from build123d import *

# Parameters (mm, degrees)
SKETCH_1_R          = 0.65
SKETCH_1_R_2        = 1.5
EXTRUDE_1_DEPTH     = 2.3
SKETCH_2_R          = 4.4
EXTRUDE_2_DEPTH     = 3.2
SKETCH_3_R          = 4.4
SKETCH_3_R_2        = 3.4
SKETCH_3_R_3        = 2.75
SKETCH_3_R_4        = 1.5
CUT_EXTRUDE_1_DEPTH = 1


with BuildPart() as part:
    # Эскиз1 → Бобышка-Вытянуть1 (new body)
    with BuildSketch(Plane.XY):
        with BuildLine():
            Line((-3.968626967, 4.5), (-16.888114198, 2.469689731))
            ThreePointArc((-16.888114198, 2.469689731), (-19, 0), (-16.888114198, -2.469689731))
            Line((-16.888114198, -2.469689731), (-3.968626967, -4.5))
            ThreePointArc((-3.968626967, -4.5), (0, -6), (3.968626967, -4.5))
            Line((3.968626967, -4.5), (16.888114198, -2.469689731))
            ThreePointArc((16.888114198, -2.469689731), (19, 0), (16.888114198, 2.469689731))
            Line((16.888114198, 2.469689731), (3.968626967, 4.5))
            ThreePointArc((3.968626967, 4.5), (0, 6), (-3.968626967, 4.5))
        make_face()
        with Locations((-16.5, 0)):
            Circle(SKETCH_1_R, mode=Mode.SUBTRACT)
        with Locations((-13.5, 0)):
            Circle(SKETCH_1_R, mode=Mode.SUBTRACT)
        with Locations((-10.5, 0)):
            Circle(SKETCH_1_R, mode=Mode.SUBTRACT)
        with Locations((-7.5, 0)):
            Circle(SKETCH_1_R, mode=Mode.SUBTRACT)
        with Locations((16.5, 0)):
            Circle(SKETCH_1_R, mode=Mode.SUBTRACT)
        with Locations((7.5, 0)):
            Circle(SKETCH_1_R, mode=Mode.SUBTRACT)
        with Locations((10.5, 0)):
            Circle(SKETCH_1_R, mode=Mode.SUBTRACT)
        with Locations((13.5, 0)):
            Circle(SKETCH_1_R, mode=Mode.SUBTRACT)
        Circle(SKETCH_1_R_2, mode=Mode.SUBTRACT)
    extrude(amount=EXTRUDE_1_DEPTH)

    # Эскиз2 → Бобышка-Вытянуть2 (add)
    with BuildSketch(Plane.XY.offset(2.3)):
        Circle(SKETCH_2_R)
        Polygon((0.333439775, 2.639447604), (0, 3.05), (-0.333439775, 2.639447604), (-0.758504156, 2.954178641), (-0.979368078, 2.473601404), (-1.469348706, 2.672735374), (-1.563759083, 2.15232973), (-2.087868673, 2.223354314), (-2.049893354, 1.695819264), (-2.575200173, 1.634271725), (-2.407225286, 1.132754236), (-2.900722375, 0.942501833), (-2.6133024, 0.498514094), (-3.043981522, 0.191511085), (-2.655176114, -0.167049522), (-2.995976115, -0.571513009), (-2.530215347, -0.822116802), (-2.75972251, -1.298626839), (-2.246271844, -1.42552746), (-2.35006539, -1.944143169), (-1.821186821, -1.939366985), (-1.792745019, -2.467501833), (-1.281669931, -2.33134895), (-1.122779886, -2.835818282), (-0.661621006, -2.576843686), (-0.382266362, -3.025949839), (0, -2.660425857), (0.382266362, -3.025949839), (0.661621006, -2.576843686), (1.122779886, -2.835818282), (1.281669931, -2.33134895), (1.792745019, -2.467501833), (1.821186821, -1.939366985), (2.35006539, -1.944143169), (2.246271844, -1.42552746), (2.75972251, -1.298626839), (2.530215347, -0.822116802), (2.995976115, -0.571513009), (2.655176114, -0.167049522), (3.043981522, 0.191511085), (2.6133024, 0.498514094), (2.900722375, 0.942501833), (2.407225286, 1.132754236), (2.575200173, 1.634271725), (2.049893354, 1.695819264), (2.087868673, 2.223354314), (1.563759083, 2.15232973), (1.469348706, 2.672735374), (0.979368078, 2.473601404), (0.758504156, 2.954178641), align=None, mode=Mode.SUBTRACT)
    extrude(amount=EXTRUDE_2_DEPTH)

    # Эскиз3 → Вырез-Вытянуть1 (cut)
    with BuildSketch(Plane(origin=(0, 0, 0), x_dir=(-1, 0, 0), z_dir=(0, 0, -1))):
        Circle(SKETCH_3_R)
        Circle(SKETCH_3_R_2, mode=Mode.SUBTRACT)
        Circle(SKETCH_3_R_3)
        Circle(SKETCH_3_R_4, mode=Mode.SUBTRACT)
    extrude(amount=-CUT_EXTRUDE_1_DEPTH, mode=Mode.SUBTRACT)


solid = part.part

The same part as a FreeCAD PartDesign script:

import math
import FreeCAD as App
import Part
import Sketcher
from FreeCAD import Vector


def add_polygon(sketch, points):
    """Adds a closed chain of lines whose ends are joined by coincident constraints."""
    first, n = sketch.GeometryCount, len(points)
    for a, b in zip(points, points[1:] + points[:1]):
        sketch.addGeometry(Part.LineSegment(App.Vector(*a, 0), App.Vector(*b, 0)), False)
    for i in range(n):
        sketch.addConstraint(Sketcher.Constraint("Coincident", first + i, 2, first + (i + 1) % n, 1))

doc = App.newDocument("Part")
body = doc.addObject("PartDesign::Body", "Body")

# Sketch on XY plane
sketch1 = body.newObject("Sketcher::SketchObject", "Sketch")
sketch1.AttachmentSupport = (doc.getObject("XY_Plane"), [""])
sketch1.MapMode = "FlatFace"
sketch1.addGeometry(Part.LineSegment(Vector(-3.968627, 4.5, 0), Vector(-16.888114, 2.46969, 0)), False)
sketch1.addGeometry(Part.ArcOfCircle(Part.Circle(Vector(-16.5, 0, 0), Vector(0, 0, 1), 2.5), math.radians(98.931045), math.radians(261.068955)), False)
sketch1.addGeometry(Part.LineSegment(Vector(-16.888114, -2.46969, 0), Vector(-3.968627, -4.5, 0)), False)
sketch1.addGeometry(Part.ArcOfCircle(Part.Circle(Vector(0, 0, 0), Vector(0, 0, 1), 6), math.radians(-131.409622), math.radians(-48.590378)), False)
sketch1.addGeometry(Part.LineSegment(Vector(3.968627, -4.5, 0), Vector(16.888114, -2.46969, 0)), False)
sketch1.addGeometry(Part.ArcOfCircle(Part.Circle(Vector(16.5, 0, 0), Vector(0, 0, 1), 2.5), math.radians(-81.068955), math.radians(81.068955)), False)
sketch1.addGeometry(Part.LineSegment(Vector(16.888114, 2.46969, 0), Vector(3.968627, 4.5, 0)), False)
sketch1.addGeometry(Part.ArcOfCircle(Part.Circle(Vector(0, 0, 0), Vector(0, 0, 1), 6), math.radians(48.590378), math.radians(131.409622)), False)
sketch1.addGeometry(Part.Circle(Vector(-16.5, 0, 0), Vector(0, 0, 1), 0.65), False)
sketch1.addGeometry(Part.Circle(Vector(-13.5, 0, 0), Vector(0, 0, 1), 0.65), False)
sketch1.addGeometry(Part.Circle(Vector(-10.5, 0, 0), Vector(0, 0, 1), 0.65), False)
sketch1.addGeometry(Part.Circle(Vector(-7.5, 0, 0), Vector(0, 0, 1), 0.65), False)
sketch1.addGeometry(Part.Circle(Vector(0, 0, 0), Vector(0, 0, 1), 1.5), False)
sketch1.addGeometry(Part.Circle(Vector(7.5, 0, 0), Vector(0, 0, 1), 0.65), False)
sketch1.addGeometry(Part.Circle(Vector(10.5, 0, 0), Vector(0, 0, 1), 0.65), False)
sketch1.addGeometry(Part.Circle(Vector(13.5, 0, 0), Vector(0, 0, 1), 0.65), False)
sketch1.addGeometry(Part.Circle(Vector(16.5, 0, 0), Vector(0, 0, 1), 0.65), False)
sketch1.addConstraint(Sketcher.Constraint("Tangent", 0, 2, 1, 1))
sketch1.addConstraint(Sketcher.Constraint("Tangent", 1, 2, 2, 1))
sketch1.addConstraint(Sketcher.Constraint("Coincident", 2, 2, 3, 1))
sketch1.addConstraint(Sketcher.Constraint("Coincident", 3, 2, 4, 1))
sketch1.addConstraint(Sketcher.Constraint("Tangent", 4, 2, 5, 1))
sketch1.addConstraint(Sketcher.Constraint("Tangent", 5, 2, 6, 1))
sketch1.addConstraint(Sketcher.Constraint("Coincident", 6, 2, 7, 1))
sketch1.addConstraint(Sketcher.Constraint("Coincident", 7, 2, 0, 1))
sketch1.addConstraint(Sketcher.Constraint("Coincident", 3, 3, -1, 1))
sketch1.addConstraint(Sketcher.Constraint("Coincident", 7, 3, -1, 1))
sketch1.addConstraint(Sketcher.Constraint("Coincident", 12, 3, -1, 1))
sketch1.addConstraint(Sketcher.Constraint("Coincident", 8, 3, 1, 3))
sketch1.addConstraint(Sketcher.Constraint("Coincident", 16, 3, 5, 3))
sketch1.addConstraint(Sketcher.Constraint("Equal", 1, 5))
sketch1.addConstraint(Sketcher.Constraint("Equal", 3, 7))
sketch1.addConstraint(Sketcher.Constraint("Equal", 8, 9))
sketch1.addConstraint(Sketcher.Constraint("Equal", 9, 10))
sketch1.addConstraint(Sketcher.Constraint("Equal", 10, 11))
sketch1.addConstraint(Sketcher.Constraint("Equal", 11, 13))
sketch1.addConstraint(Sketcher.Constraint("Equal", 13, 14))
sketch1.addConstraint(Sketcher.Constraint("Equal", 14, 15))
sketch1.addConstraint(Sketcher.Constraint("Equal", 15, 16))
sketch1.addConstraint(Sketcher.Constraint("Symmetric", 1, 3, 5, 3, -1, 1))
sketch1.addConstraint(Sketcher.Constraint("Symmetric", 11, 3, 13, 3, -1, 1))
sketch1.addConstraint(Sketcher.Constraint("Symmetric", 10, 3, 14, 3, -1, 1))
sketch1.addConstraint(Sketcher.Constraint("Symmetric", 9, 3, 15, 3, -1, 1))
sketch1.addConstraint(Sketcher.Constraint("Symmetric", 1, 2, 4, 2, -2))
sketch1.addConstraint(Sketcher.Constraint("PointOnObject", 9, 3, -1))
sketch1.addConstraint(Sketcher.Constraint("PointOnObject", 10, 3, -1))
sketch1.addConstraint(Sketcher.Constraint("PointOnObject", 11, 3, -1))
sketch1.addConstraint(Sketcher.Constraint("Parallel", 0, 4))
sketch1.addConstraint(Sketcher.Constraint("Parallel", 2, 6))
sketch1.addConstraint(Sketcher.Constraint("Diameter", 12, 3.0))
sketch1.addConstraint(Sketcher.Constraint("Radius", 3, 6.0))
sketch1.addConstraint(Sketcher.Constraint("Diameter", 8, 1.3))
sketch1.addConstraint(Sketcher.Constraint("Radius", 1, 2.5))
sketch1.addConstraint(Sketcher.Constraint("DistanceX", 1, 3, 5, 3, 33.0))
sketch1.addConstraint(Sketcher.Constraint("DistanceX", 1, 3, 9, 3, 3.0))
sketch1.addConstraint(Sketcher.Constraint("DistanceX", 9, 3, 10, 3, 3.0))
sketch1.addConstraint(Sketcher.Constraint("DistanceX", 10, 3, 11, 3, 3.0))
sketch1.addConstraint(Sketcher.Constraint("DistanceY", 2, 2, -1, 1, 4.5))
pad1 = body.newObject("PartDesign::Pad", "Pad")
pad1.Profile = sketch1
pad1.Length = 2.3

# Sketch on XY plane
sketch2 = body.newObject("Sketcher::SketchObject", "Sketch001")
sketch2.AttachmentSupport = (doc.getObject("XY_Plane"), [""])
sketch2.MapMode = "FlatFace"
sketch2.AttachmentOffset = App.Placement(Vector(0, 0, 2.3), App.Rotation())
sketch2.addGeometry(Part.Circle(Vector(0, 0, 0), Vector(0, 0, 1), 4.4), False)  # 0
add_polygon(sketch2, [(0, 3.05), (0.33344, 2.639448), (0.758504, 2.954179), (0.979368, 2.473601), (1.469349, 2.672735), (1.563759, 2.15233), (2.087869, 2.223354), (2.049893, 1.695819), (2.5752, 1.634272), (2.407225, 1.132754), (2.900722, 0.942502), (2.613302, 0.498514), (3.043982, 0.191511), (2.655176, -0.16705), (2.995976, -0.571513), (2.530215, -0.822117), (2.759723, -1.298627), (2.246272, -1.425527), (2.350065, -1.944143), (1.821187, -1.939367), (1.792745, -2.467502), (1.28167, -2.331349), (1.12278, -2.835818), (0.661621, -2.576844), (0.382266, -3.02595), (0, -2.660426), (-0.382266, -3.02595), (-0.661621, -2.576844), (-1.12278, -2.835818), (-1.28167, -2.331349), (-1.792745, -2.467502), (-1.821187, -1.939367), (-2.350065, -1.944143), (-2.246272, -1.425527), (-2.759723, -1.298627), (-2.530215, -0.822117), (-2.995976, -0.571513), (-2.655176, -0.16705), (-3.043982, 0.191511), (-2.613302, 0.498514), (-2.900722, 0.942502), (-2.407225, 1.132754), (-2.5752, 1.634272), (-2.049893, 1.695819), (-2.087869, 2.223354), (-1.563759, 2.15233), (-1.469349, 2.672735), (-0.979368, 2.473601), (-0.758504, 2.954179), (-0.33344, 2.639448)])  # lines 1-50
sketch2.addConstraint(Sketcher.Constraint("Coincident", 0, 3, -1, 1))
sketch2.addConstraint(Sketcher.Constraint("Symmetric", 24, 2, 26, 2, -2))
sketch2.addConstraint(Sketcher.Constraint("Symmetric", 23, 2, 27, 2, -2))
sketch2.addConstraint(Sketcher.Constraint("Symmetric", 22, 2, 28, 2, -2))
sketch2.addConstraint(Sketcher.Constraint("Symmetric", 21, 2, 29, 2, -2))
sketch2.addConstraint(Sketcher.Constraint("Symmetric", 20, 2, 30, 2, -2))
sketch2.addConstraint(Sketcher.Constraint("Symmetric", 19, 2, 31, 2, -2))
sketch2.addConstraint(Sketcher.Constraint("Symmetric", 18, 2, 32, 2, -2))
sketch2.addConstraint(Sketcher.Constraint("Symmetric", 17, 2, 33, 2, -2))
sketch2.addConstraint(Sketcher.Constraint("Symmetric", 16, 2, 34, 2, -2))
sketch2.addConstraint(Sketcher.Constraint("Symmetric", 15, 2, 35, 2, -2))
sketch2.addConstraint(Sketcher.Constraint("Symmetric", 14, 2, 36, 2, -2))
sketch2.addConstraint(Sketcher.Constraint("Symmetric", 13, 2, 37, 2, -2))
sketch2.addConstraint(Sketcher.Constraint("Symmetric", 12, 2, 38, 2, -2))
sketch2.addConstraint(Sketcher.Constraint("Symmetric", 11, 2, 39, 2, -2))
sketch2.addConstraint(Sketcher.Constraint("Symmetric", 10, 2, 40, 2, -2))
sketch2.addConstraint(Sketcher.Constraint("Symmetric", 9, 2, 41, 2, -2))
sketch2.addConstraint(Sketcher.Constraint("Symmetric", 8, 2, 42, 2, -2))
sketch2.addConstraint(Sketcher.Constraint("Symmetric", 7, 2, 43, 2, -2))
sketch2.addConstraint(Sketcher.Constraint("Symmetric", 6, 2, 44, 2, -2))
sketch2.addConstraint(Sketcher.Constraint("Symmetric", 5, 2, 45, 2, -2))
sketch2.addConstraint(Sketcher.Constraint("Symmetric", 4, 2, 46, 2, -2))
sketch2.addConstraint(Sketcher.Constraint("Symmetric", 3, 2, 47, 2, -2))
sketch2.addConstraint(Sketcher.Constraint("Symmetric", 2, 2, 48, 2, -2))
sketch2.addConstraint(Sketcher.Constraint("Symmetric", 1, 2, 49, 2, -2))
sketch2.addConstraint(Sketcher.Constraint("PointOnObject", 25, 2, -2))
sketch2.addConstraint(Sketcher.Constraint("PointOnObject", 50, 2, -2))
sketch2.addConstraint(Sketcher.Constraint("Equal", 1, 2))
sketch2.addConstraint(Sketcher.Constraint("Equal", 2, 3))
sketch2.addConstraint(Sketcher.Constraint("Equal", 3, 4))
sketch2.addConstraint(Sketcher.Constraint("Equal", 4, 5))
sketch2.addConstraint(Sketcher.Constraint("Equal", 5, 6))
sketch2.addConstraint(Sketcher.Constraint("Equal", 6, 7))
sketch2.addConstraint(Sketcher.Constraint("Equal", 7, 8))
sketch2.addConstraint(Sketcher.Constraint("Equal", 8, 9))
sketch2.addConstraint(Sketcher.Constraint("Equal", 9, 10))
sketch2.addConstraint(Sketcher.Constraint("Equal", 10, 11))
sketch2.addConstraint(Sketcher.Constraint("Equal", 11, 12))
sketch2.addConstraint(Sketcher.Constraint("Equal", 12, 13))
sketch2.addConstraint(Sketcher.Constraint("Equal", 13, 14))
sketch2.addConstraint(Sketcher.Constraint("Equal", 14, 15))
sketch2.addConstraint(Sketcher.Constraint("Equal", 15, 16))
sketch2.addConstraint(Sketcher.Constraint("Equal", 16, 17))
sketch2.addConstraint(Sketcher.Constraint("Equal", 17, 18))
sketch2.addConstraint(Sketcher.Constraint("Equal", 18, 19))
sketch2.addConstraint(Sketcher.Constraint("Equal", 19, 20))
sketch2.addConstraint(Sketcher.Constraint("Equal", 20, 21))
sketch2.addConstraint(Sketcher.Constraint("Equal", 21, 22))
sketch2.addConstraint(Sketcher.Constraint("Equal", 22, 23))
sketch2.addConstraint(Sketcher.Constraint("Equal", 23, 24))
sketch2.addConstraint(Sketcher.Constraint("Equal", 24, 25))
sketch2.addConstraint(Sketcher.Constraint("Diameter", 0, 8.8))
sketch2.addConstraint(Sketcher.Constraint("DistanceY", -1, 1, 50, 2, 3.05))
sketch2.addConstraint(Sketcher.Constraint("Distance", 1, 0.5289))
sketch2.addConstraint(Sketcher.Constraint("DistanceY", -1, 1, 3, 2, 2.473601))
sketch2.addConstraint(Sketcher.Constraint("DistanceX", -1, 1, 8, 2, 2.5752))
sketch2.addConstraint(Sketcher.Constraint("DistanceY", -1, 1, 10, 2, 0.942502))
sketch2.addConstraint(Sketcher.Constraint("DistanceY", 20, 2, -1, 1, 2.467502))
sketch2.addConstraint(Sketcher.Constraint("DistanceX", 3, 2, 6, 2, 1.108501))
sketch2.addConstraint(Sketcher.Constraint("DistanceY", 9, 2, 6, 2, 1.0906))
sketch2.addConstraint(Sketcher.Constraint("DistanceX", 13, 2, 14, 2, 0.3408))
sketch2.addConstraint(Sketcher.Constraint("DistanceY", 17, 2, 16, 2, 0.126901))
sketch2.addConstraint(Sketcher.Constraint("DistanceX", 21, 2, 17, 2, 0.964602))
sketch2.addConstraint(Sketcher.Constraint("DistanceY", 23, 2, 18, 2, 0.632701))
sketch2.addConstraint(Sketcher.Constraint("DistanceY", 24, 2, 21, 2, 0.694601))
sketch2.addConstraint(Sketcher.Constraint("DistanceX", 27, 2, 22, 2, 1.784401))
sketch2.addConstraint(Sketcher.Constraint("DistanceX", -1, 1, 1, 2, 0.33344))
sketch2.addConstraint(Sketcher.Constraint("DistanceY", -1, 1, 2, 2, 2.954179))
sketch2.addConstraint(Sketcher.Constraint("DistanceX", -1, 1, 4, 2, 1.469349))
sketch2.addConstraint(Sketcher.Constraint("DistanceX", -1, 1, 5, 2, 1.563759))
sketch2.addConstraint(Sketcher.Constraint("DistanceY", -1, 1, 8, 2, 1.634272))
sketch2.addConstraint(Sketcher.Constraint("DistanceX", -1, 1, 12, 2, 3.043982))
sketch2.addConstraint(Sketcher.Constraint("DistanceY", -1, 1, 12, 2, 0.191511))
sketch2.addConstraint(Sketcher.Constraint("DistanceY", 13, 2, -1, 1, 0.16705))
sketch2.addConstraint(Sketcher.Constraint("DistanceX", -1, 1, 17, 2, 2.246272))
sketch2.addConstraint(Sketcher.Constraint("DistanceY", 21, 2, -1, 1, 2.331349))
sketch2.addConstraint(Sketcher.Constraint("DistanceX", -1, 1, 22, 2, 1.12278))
sketch2.addConstraint(Sketcher.Constraint("DistanceX", 15, 2, 14, 2, 0.465761))
pad2 = body.newObject("PartDesign::Pad", "Pad001")
pad2.Profile = sketch2
pad2.Length = 3.2

# Sketch on XY plane
sketch3 = body.newObject("Sketcher::SketchObject", "Sketch002")
sketch3.AttachmentSupport = (doc.getObject("XY_Plane"), [""])
sketch3.MapMode = "FlatFace"
sketch3.addGeometry(Part.Circle(Vector(0, 0, 0), Vector(0, 0, 1), 4.4), False)
sketch3.addGeometry(Part.Circle(Vector(0, 0, 0), Vector(0, 0, 1), 3.4), False)
sketch3.addGeometry(Part.Circle(Vector(0, 0, 0), Vector(0, 0, 1), 2.75), False)
sketch3.addGeometry(Part.Circle(Vector(0, 0, 0), Vector(0, 0, 1), 1.5), False)
sketch3.addConstraint(Sketcher.Constraint("Coincident", 0, 3, -1, 1))
sketch3.addConstraint(Sketcher.Constraint("Coincident", 1, 3, -1, 1))
sketch3.addConstraint(Sketcher.Constraint("Coincident", 2, 3, -1, 1))
sketch3.addConstraint(Sketcher.Constraint("Coincident", 3, 3, -1, 1))
sketch3.addConstraint(Sketcher.Constraint("Diameter", 3, 3.0))
sketch3.addConstraint(Sketcher.Constraint("Diameter", 0, 8.8))
sketch3.addConstraint(Sketcher.Constraint("Diameter", 1, 6.8))
sketch3.addConstraint(Sketcher.Constraint("Diameter", 2, 5.5))
pocket1 = body.newObject("PartDesign::Pocket", "Pocket")
pocket1.Profile = sketch3
pocket1.Length = 1
pocket1.Reversed = True

doc.recompute()
